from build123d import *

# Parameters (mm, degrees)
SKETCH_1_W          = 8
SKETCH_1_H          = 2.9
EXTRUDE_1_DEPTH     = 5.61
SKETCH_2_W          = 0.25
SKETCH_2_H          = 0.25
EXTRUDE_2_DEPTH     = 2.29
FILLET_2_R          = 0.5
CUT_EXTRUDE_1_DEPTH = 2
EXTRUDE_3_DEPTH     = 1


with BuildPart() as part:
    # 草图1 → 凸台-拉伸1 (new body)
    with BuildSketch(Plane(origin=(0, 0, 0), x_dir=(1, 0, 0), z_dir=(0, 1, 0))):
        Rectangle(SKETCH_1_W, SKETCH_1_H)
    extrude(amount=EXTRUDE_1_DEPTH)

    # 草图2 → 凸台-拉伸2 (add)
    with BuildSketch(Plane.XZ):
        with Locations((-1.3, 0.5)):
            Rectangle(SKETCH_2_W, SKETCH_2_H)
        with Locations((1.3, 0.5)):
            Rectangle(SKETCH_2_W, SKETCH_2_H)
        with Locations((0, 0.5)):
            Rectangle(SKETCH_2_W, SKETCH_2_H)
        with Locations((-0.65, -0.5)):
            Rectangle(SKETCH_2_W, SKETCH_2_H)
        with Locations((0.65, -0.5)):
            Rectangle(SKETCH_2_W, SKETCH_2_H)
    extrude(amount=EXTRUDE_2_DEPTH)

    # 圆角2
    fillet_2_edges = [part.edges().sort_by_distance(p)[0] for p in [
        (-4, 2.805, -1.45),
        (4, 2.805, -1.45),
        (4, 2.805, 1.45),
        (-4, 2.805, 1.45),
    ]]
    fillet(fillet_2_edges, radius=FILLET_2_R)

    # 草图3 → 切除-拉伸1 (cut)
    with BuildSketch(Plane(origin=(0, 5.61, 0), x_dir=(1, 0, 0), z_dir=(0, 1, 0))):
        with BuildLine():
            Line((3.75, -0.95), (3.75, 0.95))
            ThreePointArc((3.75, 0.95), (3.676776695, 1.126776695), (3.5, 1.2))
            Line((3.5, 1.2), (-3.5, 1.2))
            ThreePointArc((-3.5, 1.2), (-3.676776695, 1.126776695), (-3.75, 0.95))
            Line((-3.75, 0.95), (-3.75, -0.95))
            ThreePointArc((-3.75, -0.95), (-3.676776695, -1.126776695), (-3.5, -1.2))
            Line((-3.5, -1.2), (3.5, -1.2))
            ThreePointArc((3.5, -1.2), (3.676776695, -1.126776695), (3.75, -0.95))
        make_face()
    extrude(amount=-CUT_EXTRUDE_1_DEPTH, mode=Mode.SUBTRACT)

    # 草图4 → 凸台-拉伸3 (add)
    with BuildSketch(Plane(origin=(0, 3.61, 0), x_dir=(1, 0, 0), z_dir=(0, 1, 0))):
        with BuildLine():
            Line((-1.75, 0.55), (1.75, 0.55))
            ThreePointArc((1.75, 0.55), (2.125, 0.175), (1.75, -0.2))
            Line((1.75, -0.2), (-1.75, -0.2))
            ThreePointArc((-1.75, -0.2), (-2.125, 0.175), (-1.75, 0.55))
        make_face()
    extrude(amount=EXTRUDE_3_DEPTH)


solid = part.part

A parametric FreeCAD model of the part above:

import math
import FreeCAD as App
import Part
import Sketcher
Q = App.Units.Quantity


def edges_at(feature, points):
    """Names of the edges that pass closest to the given points."""
    edges = feature.Shape.Edges
    near = lambda p: min(range(len(edges)), key=lambda i: edges[i].distToShape(Part.Vertex(*p))[0])
    return sorted({f"Edge{near(p) + 1}" for p in points})

doc = App.newDocument("Part")
body = doc.addObject("PartDesign::Body", "Body")

# Sketch on XZ plane
sketch1 = body.newObject("Sketcher::SketchObject", "Sketch")
sketch1.AttachmentSupport = (doc.getObject("XZ_Plane"), [""])
sketch1.MapMode = "FlatFace"
sketch1.addGeometry([
    Part.LineSegment(App.Vector(-4, -1.45, 0), App.Vector(-4, 1.45, 0)),
    Part.LineSegment(App.Vector(-4, 1.45, 0), App.Vector(4, 1.45, 0)),
    Part.LineSegment(App.Vector(4, 1.45, 0), App.Vector(4, -1.45, 0)),
    Part.LineSegment(App.Vector(4, -1.45, 0), App.Vector(-4, -1.45, 0)),
], False)
sketch1.addConstraint([
    Sketcher.Constraint("Coincident", 0, 2, 1, 1),
    Sketcher.Constraint("Coincident", 1, 2, 2, 1),
    Sketcher.Constraint("Coincident", 2, 2, 3, 1),
    Sketcher.Constraint("Coincident", 3, 2, 0, 1),
    Sketcher.Constraint("Vertical", 0),
    Sketcher.Constraint("Horizontal", 1),
    Sketcher.Constraint("Vertical", 2),
    Sketcher.Constraint("Horizontal", 3),
    Sketcher.Constraint("Symmetric", 0, 2, 2, 2, -1, 1),
    Sketcher.Constraint("DistanceX", 1, 1, 1, 2, Q("8 mm")),
    Sketcher.Constraint("DistanceY", 0, 1, 0, 2, Q("2.9 mm")),
])
pad1 = body.newObject("PartDesign::Pad", "Pad")
pad1.Profile = sketch1
pad1.Length = 5.61
pad1.Reversed = True

# Sketch on XZ plane
sketch2 = body.newObject("Sketcher::SketchObject", "Sketch001")
sketch2.AttachmentSupport = (doc.getObject("XZ_Plane"), [""])
sketch2.MapMode = "FlatFace"
sketch2.addGeometry([
    Part.LineSegment(App.Vector(-1.425, 0.625, 0), App.Vector(-1.425, 0.375, 0)),  # 0
    Part.LineSegment(App.Vector(-1.425, 0.375, 0), App.Vector(-1.175, 0.375, 0)),  # 1
    Part.LineSegment(App.Vector(-1.175, 0.375, 0), App.Vector(-1.175, 0.625, 0)),  # 2
    Part.LineSegment(App.Vector(-1.175, 0.625, 0), App.Vector(-1.425, 0.625, 0)),  # 3
    Part.LineSegment(App.Vector(1.175, 0.625, 0), App.Vector(1.175, 0.375, 0)),  # 4
    Part.LineSegment(App.Vector(1.175, 0.375, 0), App.Vector(1.425, 0.375, 0)),  # 5
    Part.LineSegment(App.Vector(1.425, 0.375, 0), App.Vector(1.425, 0.625, 0)),  # 6
    Part.LineSegment(App.Vector(1.425, 0.625, 0), App.Vector(1.175, 0.625, 0)),  # 7
    Part.LineSegment(App.Vector(-0.125, 0.625, 0), App.Vector(-0.125, 0.375, 0)),  # 8
    Part.LineSegment(App.Vector(-0.125, 0.375, 0), App.Vector(0.125, 0.375, 0)),  # 9
    Part.LineSegment(App.Vector(0.125, 0.375, 0), App.Vector(0.125, 0.625, 0)),  # 10
    Part.LineSegment(App.Vector(0.125, 0.625, 0), App.Vector(-0.125, 0.625, 0)),  # 11
    Part.LineSegment(App.Vector(-0.775, -0.375, 0), App.Vector(-0.775, -0.625, 0)),  # 12
    Part.LineSegment(App.Vector(-0.775, -0.625, 0), App.Vector(-0.525, -0.625, 0)),  # 13
    Part.LineSegment(App.Vector(-0.525, -0.625, 0), App.Vector(-0.525, -0.375, 0)),  # 14
    Part.LineSegment(App.Vector(-0.525, -0.375, 0), App.Vector(-0.775, -0.375, 0)),  # 15
    Part.LineSegment(App.Vector(0.525, -0.375, 0), App.Vector(0.525, -0.625, 0)),  # 16
    Part.LineSegment(App.Vector(0.525, -0.625, 0), App.Vector(0.775, -0.625, 0)),  # 17
    Part.LineSegment(App.Vector(0.775, -0.625, 0), App.Vector(0.775, -0.375, 0)),  # 18
    Part.LineSegment(App.Vector(0.775, -0.375, 0), App.Vector(0.525, -0.375, 0)),  # 19
], False)
sketch2.addConstraint([
    Sketcher.Constraint("Coincident", 0, 2, 1, 1),
    Sketcher.Constraint("Coincident", 1, 2, 2, 1),
    Sketcher.Constraint("Coincident", 2, 2, 3, 1),
    Sketcher.Constraint("Coincident", 3, 2, 0, 1),
    Sketcher.Constraint("Coincident", 4, 2, 5, 1),
    Sketcher.Constraint("Coincident", 5, 2, 6, 1),
    Sketcher.Constraint("Coincident", 6, 2, 7, 1),
    Sketcher.Constraint("Coincident", 7, 2, 4, 1),
    Sketcher.Constraint("Coincident", 8, 2, 9, 1),
    Sketcher.Constraint("Coincident", 9, 2, 10, 1),
    Sketcher.Constraint("Coincident", 10, 2, 11, 1),
    Sketcher.Constraint("Coincident", 11, 2, 8, 1),
    Sketcher.Constraint("Coincident", 12, 2, 13, 1),
    Sketcher.Constraint("Coincident", 13, 2, 14, 1),
    Sketcher.Constraint("Coincident", 14, 2, 15, 1),
    Sketcher.Constraint("Coincident", 15, 2, 12, 1),
    Sketcher.Constraint("Coincident", 16, 2, 17, 1),
    Sketcher.Constraint("Coincident", 17, 2, 18, 1),
    Sketcher.Constraint("Coincident", 18, 2, 19, 1),
    Sketcher.Constraint("Coincident", 19, 2, 16, 1),
    Sketcher.Constraint("Vertical", 0),
    Sketcher.Constraint("Horizontal", 1),
    Sketcher.Constraint("Vertical", 2),
    Sketcher.Constraint("Horizontal", 3),
    Sketcher.Constraint("Vertical", 4),
    Sketcher.Constraint("Horizontal", 5),
    Sketcher.Constraint("Vertical", 6),
    Sketcher.Constraint("Horizontal", 7),
    Sketcher.Constraint("Vertical", 8),
    Sketcher.Constraint("Horizontal", 9),
    Sketcher.Constraint("Vertical", 10),
    Sketcher.Constraint("Horizontal", 11),
    Sketcher.Constraint("Vertical", 12),
    Sketcher.Constraint("Horizontal", 13),
    Sketcher.Constraint("Vertical", 14),
    Sketcher.Constraint("Horizontal", 15),
    Sketcher.Constraint("Vertical", 16),
    Sketcher.Constraint("Horizontal", 17),
    Sketcher.Constraint("Vertical", 18),
    Sketcher.Constraint("Horizontal", 19),
    Sketcher.Constraint("Symmetric", 1, 2, 4, 2, -2),
    Sketcher.Constraint("Symmetric", 3, 2, 6, 2, -2),
    Sketcher.Constraint("Symmetric", 13, 2, 16, 2, -2),
    Sketcher.Constraint("Symmetric", 15, 2, 18, 2, -2),
    Sketcher.Constraint("Horizontal", 5, 2, 8, 2),
    Sketcher.Constraint("Horizontal", 7, 2, 10, 2),
    Sketcher.Constraint("Equal", 7, 9),
    Sketcher.Constraint("Equal", 11, 13),
    Sketcher.Constraint("Equal", 19, 0),
    Sketcher.Constraint("Equal", 10, 12),
    Sketcher.Constraint("DistanceY", 12, 2, 1, 2, Q("1 mm")),
    Sketcher.Constraint("DistanceX", 1, 1, 1, 2, Q("0.25 mm")),
    Sketcher.Constraint("DistanceX", 0, 2, 4, 2, Q("2.6 mm")),
    Sketcher.Constraint("DistanceX", 0, 2, 8, 2, Q("1.3 mm")),
    Sketcher.Constraint("DistanceX", 1, 2, 12, 2, Q("0.4 mm")),
    Sketcher.Constraint("DistanceY", -1, 1, 0, 2, Q("0.375 mm")),
])
pad2 = body.newObject("PartDesign::Pad", "Pad001")
pad2.Profile = sketch2
pad2.Length = 2.29
doc.recompute()

fillet = body.newObject("PartDesign::Fillet", "Fillet")
fillet.Base = (pad2, edges_at(pad2, [
    (-4, 2.805, -1.45),
    (4, 2.805, -1.45),
    (4, 2.805, 1.45),
    (-4, 2.805, 1.45),
]))
fillet.Radius = 0.5

# Sketch on XZ plane
sketch3 = body.newObject("Sketcher::SketchObject", "Sketch002")
sketch3.AttachmentSupport = (doc.getObject("XZ_Plane"), [""])
sketch3.MapMode = "FlatFace"
sketch3.AttachmentOffset = App.Placement(App.Vector(0, 0, -5.61), App.Rotation())
sketch3.addGeometry([
    Part.LineSegment(App.Vector(3.75, 0.95, 0), App.Vector(3.75, -0.95, 0)),  # 0
    Part.ArcOfCircle(Part.Circle(App.Vector(3.5, -0.95, 0), App.Vector(0, 0, 1), 0.25), math.radians(-90), math.radians(0)),  # 1
    Part.LineSegment(App.Vector(3.5, -1.2, 0), App.Vector(-3.5, -1.2, 0)),  # 2
    Part.ArcOfCircle(Part.Circle(App.Vector(-3.5, -0.95, 0), App.Vector(0, 0, 1), 0.25), math.radians(-180), math.radians(-90)),  # 3
    Part.LineSegment(App.Vector(-3.75, -0.95, 0), App.Vector(-3.75, 0.95, 0)),  # 4
    Part.ArcOfCircle(Part.Circle(App.Vector(-3.5, 0.95, 0), App.Vector(0, 0, 1), 0.25), math.radians(90), math.radians(180)),  # 5
    Part.LineSegment(App.Vector(-3.5, 1.2, 0), App.Vector(3.5, 1.2, 0)),  # 6
    Part.ArcOfCircle(Part.Circle(App.Vector(3.5, 0.95, 0), App.Vector(0, 0, 1), 0.25), math.radians(0), math.radians(90)),  # 7
], False)
sketch3.addConstraint([
    Sketcher.Constraint("Tangent", 0, 2, 1, 2),
    Sketcher.Constraint("Tangent", 1, 1, 2, 1),
    Sketcher.Constraint("Tangent", 2, 2, 3, 2),
    Sketcher.Constraint("Tangent", 3, 1, 4, 1),
    Sketcher.Constraint("Tangent", 4, 2, 5, 2),
    Sketcher.Constraint("Tangent", 5, 1, 6, 1),
    Sketcher.Constraint("Tangent", 6, 2, 7, 2),
    Sketcher.Constraint("Tangent", 7, 1, 0, 1),
    Sketcher.Constraint("Vertical", 0),
    Sketcher.Constraint("Horizontal", 2),
    Sketcher.Constraint("Vertical", 4),
    Sketcher.Constraint("Horizontal", 6),
    Sketcher.Constraint("Equal", 1, 3),
    Sketcher.Constraint("Equal", 3, 5),
    Sketcher.Constraint("Equal", 5, 7),
    Sketcher.Constraint("Symmetric", 1, 3, 5, 3, -1, 1),
    Sketcher.Constraint("DistanceX", 2, 2, 2, 1, Q("7 mm")),
    Sketcher.Constraint("Radius", 1, Q("0.25 mm")),
    Sketcher.Constraint("DistanceY", 0, 2, 0, 1, Q("1.9 mm")),
])
pocket1 = body.newObject("PartDesign::Pocket", "Pocket")
pocket1.Profile = sketch3
pocket1.Length = 2
pocket1.Reversed = True

# Sketch on XZ plane
sketch4 = body.newObject("Sketcher::SketchObject", "Sketch003")
sketch4.AttachmentSupport = (doc.getObject("XZ_Plane"), [""])
sketch4.MapMode = "FlatFace"
sketch4.AttachmentOffset = App.Placement(App.Vector(0, 0, -3.61), App.Rotation())
sketch4.addGeometry([
    Part.LineSegment(App.Vector(1.75, -0.55, 0), App.Vector(-1.75, -0.55, 0)),
    Part.ArcOfCircle(Part.Circle(App.Vector(-1.75, -0.175, 0), App.Vector(0, 0, 1), 0.375), math.radians(90), math.radians(270)),
    Part.LineSegment(App.Vector(-1.75, 0.2, 0), App.Vector(1.75, 0.2, 0)),
    Part.ArcOfCircle(Part.Circle(App.Vector(1.75, -0.175, 0), App.Vector(0, 0, 1), 0.375), math.radians(-90), math.radians(90)),
], False)
sketch4.addConstraint([
    Sketcher.Constraint("Tangent", 0, 2, 1, 2),
    Sketcher.Constraint("Tangent", 1, 1, 2, 1),
    Sketcher.Constraint("Tangent", 2, 2, 3, 2),
    Sketcher.Constraint("Tangent", 3, 1, 0, 1),
    Sketcher.Constraint("Horizontal", 0),
    Sketcher.Constraint("Horizontal", 2),
    Sketcher.Constraint("DistanceX", 0, 2, 0, 1, Q("3.5 mm")),
    Sketcher.Constraint("Radius", 1, Q("0.375 mm")),
    Sketcher.Constraint("DistanceY", -1, 1, 1, 1, Q("0.2 mm")),
    Sketcher.Constraint("DistanceX", 1, 3, -1, 1, Q("1.75 mm")),
])
pad3 = body.newObject("PartDesign::Pad", "Pad002")
pad3.Profile = sketch4
pad3.Length = 1
pad3.Reversed = True

doc.recompute()
